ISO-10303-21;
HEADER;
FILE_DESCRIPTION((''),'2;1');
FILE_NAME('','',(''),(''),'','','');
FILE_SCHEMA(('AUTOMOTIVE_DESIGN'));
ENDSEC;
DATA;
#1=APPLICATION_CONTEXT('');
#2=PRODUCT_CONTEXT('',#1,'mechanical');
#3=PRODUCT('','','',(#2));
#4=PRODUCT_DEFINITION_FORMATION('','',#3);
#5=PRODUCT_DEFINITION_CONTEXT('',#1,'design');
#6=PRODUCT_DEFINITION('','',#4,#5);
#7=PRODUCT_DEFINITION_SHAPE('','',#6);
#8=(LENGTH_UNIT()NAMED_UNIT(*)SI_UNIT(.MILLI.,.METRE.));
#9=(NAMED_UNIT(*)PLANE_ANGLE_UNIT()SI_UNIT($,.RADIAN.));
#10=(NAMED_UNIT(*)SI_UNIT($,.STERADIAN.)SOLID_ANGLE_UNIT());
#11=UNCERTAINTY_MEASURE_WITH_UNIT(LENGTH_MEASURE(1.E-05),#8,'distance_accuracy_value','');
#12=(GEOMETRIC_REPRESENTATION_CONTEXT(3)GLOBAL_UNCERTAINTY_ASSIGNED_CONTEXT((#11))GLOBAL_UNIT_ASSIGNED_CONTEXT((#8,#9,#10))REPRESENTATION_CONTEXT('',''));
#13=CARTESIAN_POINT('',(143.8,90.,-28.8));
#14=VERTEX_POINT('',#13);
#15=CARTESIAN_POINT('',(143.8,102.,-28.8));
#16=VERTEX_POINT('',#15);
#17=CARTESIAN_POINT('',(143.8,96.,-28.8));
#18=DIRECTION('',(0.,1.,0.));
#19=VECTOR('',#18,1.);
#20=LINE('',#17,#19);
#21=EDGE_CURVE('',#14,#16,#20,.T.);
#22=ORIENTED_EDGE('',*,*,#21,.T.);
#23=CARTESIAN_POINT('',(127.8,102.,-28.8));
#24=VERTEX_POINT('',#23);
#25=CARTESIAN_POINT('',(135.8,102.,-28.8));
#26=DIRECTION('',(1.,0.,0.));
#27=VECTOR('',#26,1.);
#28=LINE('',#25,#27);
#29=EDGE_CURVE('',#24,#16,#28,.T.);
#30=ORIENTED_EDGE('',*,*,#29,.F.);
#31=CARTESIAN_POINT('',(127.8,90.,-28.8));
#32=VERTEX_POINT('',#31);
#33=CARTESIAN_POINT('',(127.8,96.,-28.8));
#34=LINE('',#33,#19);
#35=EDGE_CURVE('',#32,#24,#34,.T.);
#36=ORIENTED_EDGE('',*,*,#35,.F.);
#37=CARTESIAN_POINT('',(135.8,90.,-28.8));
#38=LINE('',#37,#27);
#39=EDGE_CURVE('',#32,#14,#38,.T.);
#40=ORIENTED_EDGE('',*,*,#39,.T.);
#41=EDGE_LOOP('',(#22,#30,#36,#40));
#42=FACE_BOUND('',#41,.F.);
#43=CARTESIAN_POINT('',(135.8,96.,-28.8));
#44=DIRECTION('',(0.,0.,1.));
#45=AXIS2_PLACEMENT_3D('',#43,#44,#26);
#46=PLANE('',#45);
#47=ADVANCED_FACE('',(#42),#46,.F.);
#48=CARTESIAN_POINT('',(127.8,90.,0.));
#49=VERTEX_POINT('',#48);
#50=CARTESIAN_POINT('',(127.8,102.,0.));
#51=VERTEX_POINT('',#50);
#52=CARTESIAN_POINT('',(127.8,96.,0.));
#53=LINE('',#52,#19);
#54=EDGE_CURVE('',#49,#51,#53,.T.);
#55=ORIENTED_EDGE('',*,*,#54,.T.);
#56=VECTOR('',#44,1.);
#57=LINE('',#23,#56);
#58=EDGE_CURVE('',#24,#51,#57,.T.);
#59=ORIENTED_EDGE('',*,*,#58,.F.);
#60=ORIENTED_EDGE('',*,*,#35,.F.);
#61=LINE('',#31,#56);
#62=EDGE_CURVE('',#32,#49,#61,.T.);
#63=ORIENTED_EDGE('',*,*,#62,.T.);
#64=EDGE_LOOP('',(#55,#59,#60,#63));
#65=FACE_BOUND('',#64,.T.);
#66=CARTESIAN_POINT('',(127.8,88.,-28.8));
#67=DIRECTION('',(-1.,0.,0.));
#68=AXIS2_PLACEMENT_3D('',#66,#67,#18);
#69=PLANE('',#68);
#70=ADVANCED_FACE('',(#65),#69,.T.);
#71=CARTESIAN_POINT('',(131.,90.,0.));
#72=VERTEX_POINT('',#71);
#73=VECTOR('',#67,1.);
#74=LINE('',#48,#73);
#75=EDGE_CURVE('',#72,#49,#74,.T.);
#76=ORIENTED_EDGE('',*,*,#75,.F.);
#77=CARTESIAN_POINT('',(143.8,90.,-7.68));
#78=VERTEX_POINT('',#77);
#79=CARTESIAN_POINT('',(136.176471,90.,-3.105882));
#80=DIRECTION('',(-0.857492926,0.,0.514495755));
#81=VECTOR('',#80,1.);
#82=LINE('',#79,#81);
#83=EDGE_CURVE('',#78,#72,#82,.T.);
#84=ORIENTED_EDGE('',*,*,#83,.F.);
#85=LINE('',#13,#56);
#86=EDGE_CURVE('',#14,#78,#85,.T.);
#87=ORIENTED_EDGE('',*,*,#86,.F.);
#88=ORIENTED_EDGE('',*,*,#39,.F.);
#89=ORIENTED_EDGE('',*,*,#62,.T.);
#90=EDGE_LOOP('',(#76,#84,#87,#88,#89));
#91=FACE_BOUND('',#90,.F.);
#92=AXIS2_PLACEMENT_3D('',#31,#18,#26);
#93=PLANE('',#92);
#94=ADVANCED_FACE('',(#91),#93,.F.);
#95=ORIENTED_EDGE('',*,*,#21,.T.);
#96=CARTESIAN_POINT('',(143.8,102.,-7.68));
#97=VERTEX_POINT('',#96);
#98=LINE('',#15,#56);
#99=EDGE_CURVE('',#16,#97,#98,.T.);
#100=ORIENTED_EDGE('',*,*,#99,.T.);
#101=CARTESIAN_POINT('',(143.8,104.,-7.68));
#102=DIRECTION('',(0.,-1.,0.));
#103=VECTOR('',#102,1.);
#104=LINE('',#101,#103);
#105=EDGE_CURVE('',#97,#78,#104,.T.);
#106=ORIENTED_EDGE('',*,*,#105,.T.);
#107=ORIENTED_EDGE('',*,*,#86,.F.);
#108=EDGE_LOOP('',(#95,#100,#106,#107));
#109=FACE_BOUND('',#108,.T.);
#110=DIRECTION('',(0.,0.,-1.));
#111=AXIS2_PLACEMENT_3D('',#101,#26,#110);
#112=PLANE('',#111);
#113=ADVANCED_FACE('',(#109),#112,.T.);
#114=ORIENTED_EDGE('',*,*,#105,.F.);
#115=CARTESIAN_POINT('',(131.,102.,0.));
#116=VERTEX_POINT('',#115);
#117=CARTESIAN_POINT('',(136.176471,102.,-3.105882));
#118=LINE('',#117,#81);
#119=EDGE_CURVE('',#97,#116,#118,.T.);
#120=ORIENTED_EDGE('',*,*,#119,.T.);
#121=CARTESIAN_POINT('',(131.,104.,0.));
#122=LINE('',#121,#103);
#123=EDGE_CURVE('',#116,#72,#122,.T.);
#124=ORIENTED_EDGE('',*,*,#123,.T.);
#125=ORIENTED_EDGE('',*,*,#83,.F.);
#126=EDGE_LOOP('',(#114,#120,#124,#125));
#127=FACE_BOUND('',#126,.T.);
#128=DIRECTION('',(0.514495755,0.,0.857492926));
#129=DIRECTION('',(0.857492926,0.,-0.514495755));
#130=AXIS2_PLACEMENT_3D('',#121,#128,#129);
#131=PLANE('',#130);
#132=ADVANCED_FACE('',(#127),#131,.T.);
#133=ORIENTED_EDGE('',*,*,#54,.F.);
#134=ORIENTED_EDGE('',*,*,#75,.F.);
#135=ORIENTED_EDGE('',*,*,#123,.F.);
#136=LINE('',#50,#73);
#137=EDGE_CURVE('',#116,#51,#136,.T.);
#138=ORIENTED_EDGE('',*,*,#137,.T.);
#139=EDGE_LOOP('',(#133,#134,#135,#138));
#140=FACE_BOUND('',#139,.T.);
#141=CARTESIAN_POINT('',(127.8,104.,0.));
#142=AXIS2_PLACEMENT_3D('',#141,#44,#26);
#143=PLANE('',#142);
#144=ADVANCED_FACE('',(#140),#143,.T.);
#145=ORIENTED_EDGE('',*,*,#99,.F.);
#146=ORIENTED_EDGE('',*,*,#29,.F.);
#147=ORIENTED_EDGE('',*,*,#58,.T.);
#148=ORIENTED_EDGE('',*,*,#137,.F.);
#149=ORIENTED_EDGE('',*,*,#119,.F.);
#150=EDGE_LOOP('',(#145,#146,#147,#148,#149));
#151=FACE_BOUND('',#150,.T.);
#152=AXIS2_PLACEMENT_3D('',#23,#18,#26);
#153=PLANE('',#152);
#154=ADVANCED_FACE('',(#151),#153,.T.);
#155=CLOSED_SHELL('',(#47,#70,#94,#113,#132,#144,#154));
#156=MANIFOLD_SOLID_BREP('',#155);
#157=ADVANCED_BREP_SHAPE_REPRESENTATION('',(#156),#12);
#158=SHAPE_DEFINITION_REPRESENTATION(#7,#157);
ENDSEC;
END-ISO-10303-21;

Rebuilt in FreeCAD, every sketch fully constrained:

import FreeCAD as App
import Part
import Sketcher
Q = App.Units.Quantity

doc = App.newDocument("Part")
body = doc.addObject("PartDesign::Body", "Body")

# Sketch on XY plane
sketch1 = doc.addObject("Sketcher::SketchObject", "Sketch")
body.addObject(sketch1)
sketch1.AttachmentSupport = (doc.XY_Plane, [""])
sketch1.MapMode = "FlatFace"
sketch1.AttachmentOffset = App.Placement(App.Vector(0, 0, -28.8), App.Rotation())
sketch1.addGeometry([
    Part.LineSegment(App.Vector(128, 104, 0), App.Vector(128, 88, 0)),
    Part.LineSegment(App.Vector(128, 88, 0), App.Vector(144, 88, 0)),
    Part.LineSegment(App.Vector(144, 88, 0), App.Vector(144, 104, 0)),
    Part.LineSegment(App.Vector(144, 104, 0), App.Vector(128, 104, 0)),
], False)
sketch1.addConstraint([
    Sketcher.Constraint("Coincident", 0, 2, 1, 1),
    Sketcher.Constraint("Coincident", 1, 2, 2, 1),
    Sketcher.Constraint("Coincident", 2, 2, 3, 1),
    Sketcher.Constraint("Coincident", 3, 2, 0, 1),
    Sketcher.Constraint("Vertical", 0),
    Sketcher.Constraint("Horizontal", 1),
    Sketcher.Constraint("Vertical", 2),
    Sketcher.Constraint("Horizontal", 3),
    Sketcher.Constraint("Equal", 3, 0),
    Sketcher.Constraint("DistanceX", 1, 1, 1, 2, Q("16 mm")),
    Sketcher.Constraint("DistanceY", -1, 1, 0, 2, Q("88 mm")),
    Sketcher.Constraint("DistanceX", -1, 1, 0, 2, Q("127.8 mm")),
])
pad1 = doc.addObject("PartDesign::Pad", "Pad")
body.addObject(pad1)
pad1.Profile = sketch1
pad1.Length = 28.8

# Sketch on XZ plane
sketch2 = doc.addObject("Sketcher::SketchObject", "Sketch001")
body.addObject(sketch2)
sketch2.AttachmentSupport = (doc.XZ_Plane, [""])
sketch2.MapMode = "FlatFace"
sketch2.AttachmentOffset = App.Placement(App.Vector(0, 0, -88), App.Rotation())
sketch2.addGeometry([
    Part.LineSegment(App.Vector(128, 0, 0), App.Vector(144, -10, 0)),
    Part.LineSegment(App.Vector(144, -10, 0), App.Vector(144, 0, 0)),
    Part.LineSegment(App.Vector(144, 0, 0), App.Vector(128, 0, 0)),
], False)
sketch2.addConstraint([
    Sketcher.Constraint("Coincident", 0, 2, 1, 1),
    Sketcher.Constraint("Coincident", 1, 2, 2, 1),
    Sketcher.Constraint("Coincident", 2, 2, 0, 1),
    Sketcher.Constraint("Vertical", 1),
    Sketcher.Constraint("Horizontal", 2),
    Sketcher.Constraint("PointOnObject", 1, 2, -1),
    Sketcher.Constraint("DistanceX", 2, 2, 2, 1, Q("16 mm")),
    Sketcher.Constraint("DistanceY", 1, 1, 1, 2, Q("9.6 mm")),
    Sketcher.Constraint("DistanceX", -1, 1, 0, 2, Q("143.8 mm")),
])
pocket1 = doc.addObject("PartDesign::Pocket", "Pocket")
body.addObject(pocket1)
pocket1.Profile = sketch2
pocket1.Length = 16

# Sketch on XZ plane
sketch3 = doc.addObject("Sketcher::SketchObject", "Sketch002")
body.addObject(sketch3)
sketch3.AttachmentSupport = (doc.XZ_Plane, [""])
sketch3.MapMode = "FlatFace"
sketch3.AttachmentOffset = App.Placement(App.Vector(0, 0, -104), App.Rotation())
sketch3.addGeometry([
    Part.LineSegment(App.Vector(127.8, 0, 0), App.Vector(131, 0, 0)),  # 0
    Part.LineSegment(App.Vector(131, 0, 0), App.Vector(143.8, -7.7, 0)),  # 1
    Part.LineSegment(App.Vector(143.8, -7.7, 0), App.Vector(143.8, -10.9, 0)),  # 2
    Part.LineSegment(App.Vector(143.8, -10.9, 0), App.Vector(131, -3.2, 0)),  # 3
    Part.LineSegment(App.Vector(131, -3.2, 0), App.Vector(127.8, -3.2, 0)),  # 4
    Part.LineSegment(App.Vector(127.8, -3.2, 0), App.Vector(127.8, 0, 0)),  # 5
], False)
sketch3.addConstraint([
    Sketcher.Constraint("Coincident", 0, 2, 1, 1),
    Sketcher.Constraint("Coincident", 1, 2, 2, 1),
    Sketcher.Constraint("Coincident", 2, 2, 3, 1),
    Sketcher.Constraint("Coincident", 3, 2, 4, 1),
    Sketcher.Constraint("Coincident", 4, 2, 5, 1),
    Sketcher.Constraint("Coincident", 5, 2, 0, 1),
    Sketcher.Constraint("Horizontal", 0),
    Sketcher.Constraint("Vertical", 2),
    Sketcher.Constraint("Horizontal", 4),
    Sketcher.Constraint("Vertical", 5),
    Sketcher.Constraint("PointOnObject", 0, 2, -1),
    Sketcher.Constraint("Parallel", 1, 3),
    Sketcher.Constraint("Vertical", 0, 2, 3, 2),
    Sketcher.Constraint("Equal", 4, 2),
    Sketcher.Constraint("DistanceX", 0, 1, 0, 2, Q("3.2 mm")),
    Sketcher.Constraint("DistanceX", -1, 1, 0, 2, Q("131 mm")),
    Sketcher.Constraint("DistanceX", 4, 2, 1, 2, Q("16 mm")),
    Sketcher.Constraint("DistanceY", 1, 2, -1, 1, Q("7.68 mm")),
])
pad2 = doc.addObject("PartDesign::Pad", "Pad001")
body.addObject(pad2)
pad2.Profile = sketch3
pad2.Length = 16

# Sketch on XY plane
sketch4 = doc.addObject("Sketcher::SketchObject", "Sketch003")
body.addObject(sketch4)
sketch4.AttachmentSupport = (doc.XY_Plane, [""])
sketch4.MapMode = "FlatFace"
sketch4.AttachmentOffset = App.Placement(App.Vector(0, 0, -28.8), App.Rotation())
sketch4.addGeometry([
    Part.LineSegment(App.Vector(127.8, 88, 0), App.Vector(127.8, 90, 0)),  # 0
    Part.LineSegment(App.Vector(127.8, 90, 0), App.Vector(143.8, 90, 0)),  # 1
    Part.LineSegment(App.Vector(143.8, 90, 0), App.Vector(143.8, 88, 0)),  # 2
    Part.LineSegment(App.Vector(143.8, 88, 0), App.Vector(127.8, 88, 0)),  # 3
    Part.LineSegment(App.Vector(127.8, 102, 0), App.Vector(127.8, 104, 0)),  # 4
    Part.LineSegment(App.Vector(127.8, 104, 0), App.Vector(143.8, 104, 0)),  # 5
    Part.LineSegment(App.Vector(143.8, 104, 0), App.Vector(143.8, 102, 0)),  # 6
    Part.LineSegment(App.Vector(143.8, 102, 0), App.Vector(127.8, 102, 0)),  # 7
], False)
sketch4.addConstraint([
    Sketcher.Constraint("Coincident", 0, 2, 1, 1),
    Sketcher.Constraint("Coincident", 1, 2, 2, 1),
    Sketcher.Constraint("Coincident", 2, 2, 3, 1),
    Sketcher.Constraint("Coincident", 3, 2, 0, 1),
    Sketcher.Constraint("Coincident", 4, 2, 5, 1),
    Sketcher.Constraint("Coincident", 5, 2, 6, 1),
    Sketcher.Constraint("Coincident", 6, 2, 7, 1),
    Sketcher.Constraint("Coincident", 7, 2, 4, 1),
    Sketcher.Constraint("Vertical", 0),
    Sketcher.Constraint("Horizontal", 1),
    Sketcher.Constraint("Vertical", 2),
    Sketcher.Constraint("Horizontal", 3),
    Sketcher.Constraint("Vertical", 4),
    Sketcher.Constraint("Horizontal", 5),
    Sketcher.Constraint("Vertical", 6),
    Sketcher.Constraint("Horizontal", 7),
    Sketcher.Constraint("Vertical", 3, 2, 4, 2),
    Sketcher.Constraint("Vertical", 2, 2, 5, 2),
    Sketcher.Constraint("Equal", 2, 4),
    Sketcher.Constraint("DistanceX", 1, 1, 1, 2, Q("16 mm")),
    Sketcher.Constraint("DistanceY", 0, 1, 0, 2, Q("2 mm")),
    Sketcher.Constraint("DistanceY", -1, 1, 0, 2, Q("90 mm")),
    Sketcher.Constraint("DistanceY", -1, 1, 4, 2, Q("104 mm")),
    Sketcher.Constraint("DistanceX", -1, 1, 0, 2, Q("127.8 mm")),
])
pocket2 = doc.addObject("PartDesign::Pocket", "Pocket001")
body.addObject(pocket2)
pocket2.Profile = sketch4
pocket2.Length = 30
pocket2.Reversed = True

doc.recompute()
